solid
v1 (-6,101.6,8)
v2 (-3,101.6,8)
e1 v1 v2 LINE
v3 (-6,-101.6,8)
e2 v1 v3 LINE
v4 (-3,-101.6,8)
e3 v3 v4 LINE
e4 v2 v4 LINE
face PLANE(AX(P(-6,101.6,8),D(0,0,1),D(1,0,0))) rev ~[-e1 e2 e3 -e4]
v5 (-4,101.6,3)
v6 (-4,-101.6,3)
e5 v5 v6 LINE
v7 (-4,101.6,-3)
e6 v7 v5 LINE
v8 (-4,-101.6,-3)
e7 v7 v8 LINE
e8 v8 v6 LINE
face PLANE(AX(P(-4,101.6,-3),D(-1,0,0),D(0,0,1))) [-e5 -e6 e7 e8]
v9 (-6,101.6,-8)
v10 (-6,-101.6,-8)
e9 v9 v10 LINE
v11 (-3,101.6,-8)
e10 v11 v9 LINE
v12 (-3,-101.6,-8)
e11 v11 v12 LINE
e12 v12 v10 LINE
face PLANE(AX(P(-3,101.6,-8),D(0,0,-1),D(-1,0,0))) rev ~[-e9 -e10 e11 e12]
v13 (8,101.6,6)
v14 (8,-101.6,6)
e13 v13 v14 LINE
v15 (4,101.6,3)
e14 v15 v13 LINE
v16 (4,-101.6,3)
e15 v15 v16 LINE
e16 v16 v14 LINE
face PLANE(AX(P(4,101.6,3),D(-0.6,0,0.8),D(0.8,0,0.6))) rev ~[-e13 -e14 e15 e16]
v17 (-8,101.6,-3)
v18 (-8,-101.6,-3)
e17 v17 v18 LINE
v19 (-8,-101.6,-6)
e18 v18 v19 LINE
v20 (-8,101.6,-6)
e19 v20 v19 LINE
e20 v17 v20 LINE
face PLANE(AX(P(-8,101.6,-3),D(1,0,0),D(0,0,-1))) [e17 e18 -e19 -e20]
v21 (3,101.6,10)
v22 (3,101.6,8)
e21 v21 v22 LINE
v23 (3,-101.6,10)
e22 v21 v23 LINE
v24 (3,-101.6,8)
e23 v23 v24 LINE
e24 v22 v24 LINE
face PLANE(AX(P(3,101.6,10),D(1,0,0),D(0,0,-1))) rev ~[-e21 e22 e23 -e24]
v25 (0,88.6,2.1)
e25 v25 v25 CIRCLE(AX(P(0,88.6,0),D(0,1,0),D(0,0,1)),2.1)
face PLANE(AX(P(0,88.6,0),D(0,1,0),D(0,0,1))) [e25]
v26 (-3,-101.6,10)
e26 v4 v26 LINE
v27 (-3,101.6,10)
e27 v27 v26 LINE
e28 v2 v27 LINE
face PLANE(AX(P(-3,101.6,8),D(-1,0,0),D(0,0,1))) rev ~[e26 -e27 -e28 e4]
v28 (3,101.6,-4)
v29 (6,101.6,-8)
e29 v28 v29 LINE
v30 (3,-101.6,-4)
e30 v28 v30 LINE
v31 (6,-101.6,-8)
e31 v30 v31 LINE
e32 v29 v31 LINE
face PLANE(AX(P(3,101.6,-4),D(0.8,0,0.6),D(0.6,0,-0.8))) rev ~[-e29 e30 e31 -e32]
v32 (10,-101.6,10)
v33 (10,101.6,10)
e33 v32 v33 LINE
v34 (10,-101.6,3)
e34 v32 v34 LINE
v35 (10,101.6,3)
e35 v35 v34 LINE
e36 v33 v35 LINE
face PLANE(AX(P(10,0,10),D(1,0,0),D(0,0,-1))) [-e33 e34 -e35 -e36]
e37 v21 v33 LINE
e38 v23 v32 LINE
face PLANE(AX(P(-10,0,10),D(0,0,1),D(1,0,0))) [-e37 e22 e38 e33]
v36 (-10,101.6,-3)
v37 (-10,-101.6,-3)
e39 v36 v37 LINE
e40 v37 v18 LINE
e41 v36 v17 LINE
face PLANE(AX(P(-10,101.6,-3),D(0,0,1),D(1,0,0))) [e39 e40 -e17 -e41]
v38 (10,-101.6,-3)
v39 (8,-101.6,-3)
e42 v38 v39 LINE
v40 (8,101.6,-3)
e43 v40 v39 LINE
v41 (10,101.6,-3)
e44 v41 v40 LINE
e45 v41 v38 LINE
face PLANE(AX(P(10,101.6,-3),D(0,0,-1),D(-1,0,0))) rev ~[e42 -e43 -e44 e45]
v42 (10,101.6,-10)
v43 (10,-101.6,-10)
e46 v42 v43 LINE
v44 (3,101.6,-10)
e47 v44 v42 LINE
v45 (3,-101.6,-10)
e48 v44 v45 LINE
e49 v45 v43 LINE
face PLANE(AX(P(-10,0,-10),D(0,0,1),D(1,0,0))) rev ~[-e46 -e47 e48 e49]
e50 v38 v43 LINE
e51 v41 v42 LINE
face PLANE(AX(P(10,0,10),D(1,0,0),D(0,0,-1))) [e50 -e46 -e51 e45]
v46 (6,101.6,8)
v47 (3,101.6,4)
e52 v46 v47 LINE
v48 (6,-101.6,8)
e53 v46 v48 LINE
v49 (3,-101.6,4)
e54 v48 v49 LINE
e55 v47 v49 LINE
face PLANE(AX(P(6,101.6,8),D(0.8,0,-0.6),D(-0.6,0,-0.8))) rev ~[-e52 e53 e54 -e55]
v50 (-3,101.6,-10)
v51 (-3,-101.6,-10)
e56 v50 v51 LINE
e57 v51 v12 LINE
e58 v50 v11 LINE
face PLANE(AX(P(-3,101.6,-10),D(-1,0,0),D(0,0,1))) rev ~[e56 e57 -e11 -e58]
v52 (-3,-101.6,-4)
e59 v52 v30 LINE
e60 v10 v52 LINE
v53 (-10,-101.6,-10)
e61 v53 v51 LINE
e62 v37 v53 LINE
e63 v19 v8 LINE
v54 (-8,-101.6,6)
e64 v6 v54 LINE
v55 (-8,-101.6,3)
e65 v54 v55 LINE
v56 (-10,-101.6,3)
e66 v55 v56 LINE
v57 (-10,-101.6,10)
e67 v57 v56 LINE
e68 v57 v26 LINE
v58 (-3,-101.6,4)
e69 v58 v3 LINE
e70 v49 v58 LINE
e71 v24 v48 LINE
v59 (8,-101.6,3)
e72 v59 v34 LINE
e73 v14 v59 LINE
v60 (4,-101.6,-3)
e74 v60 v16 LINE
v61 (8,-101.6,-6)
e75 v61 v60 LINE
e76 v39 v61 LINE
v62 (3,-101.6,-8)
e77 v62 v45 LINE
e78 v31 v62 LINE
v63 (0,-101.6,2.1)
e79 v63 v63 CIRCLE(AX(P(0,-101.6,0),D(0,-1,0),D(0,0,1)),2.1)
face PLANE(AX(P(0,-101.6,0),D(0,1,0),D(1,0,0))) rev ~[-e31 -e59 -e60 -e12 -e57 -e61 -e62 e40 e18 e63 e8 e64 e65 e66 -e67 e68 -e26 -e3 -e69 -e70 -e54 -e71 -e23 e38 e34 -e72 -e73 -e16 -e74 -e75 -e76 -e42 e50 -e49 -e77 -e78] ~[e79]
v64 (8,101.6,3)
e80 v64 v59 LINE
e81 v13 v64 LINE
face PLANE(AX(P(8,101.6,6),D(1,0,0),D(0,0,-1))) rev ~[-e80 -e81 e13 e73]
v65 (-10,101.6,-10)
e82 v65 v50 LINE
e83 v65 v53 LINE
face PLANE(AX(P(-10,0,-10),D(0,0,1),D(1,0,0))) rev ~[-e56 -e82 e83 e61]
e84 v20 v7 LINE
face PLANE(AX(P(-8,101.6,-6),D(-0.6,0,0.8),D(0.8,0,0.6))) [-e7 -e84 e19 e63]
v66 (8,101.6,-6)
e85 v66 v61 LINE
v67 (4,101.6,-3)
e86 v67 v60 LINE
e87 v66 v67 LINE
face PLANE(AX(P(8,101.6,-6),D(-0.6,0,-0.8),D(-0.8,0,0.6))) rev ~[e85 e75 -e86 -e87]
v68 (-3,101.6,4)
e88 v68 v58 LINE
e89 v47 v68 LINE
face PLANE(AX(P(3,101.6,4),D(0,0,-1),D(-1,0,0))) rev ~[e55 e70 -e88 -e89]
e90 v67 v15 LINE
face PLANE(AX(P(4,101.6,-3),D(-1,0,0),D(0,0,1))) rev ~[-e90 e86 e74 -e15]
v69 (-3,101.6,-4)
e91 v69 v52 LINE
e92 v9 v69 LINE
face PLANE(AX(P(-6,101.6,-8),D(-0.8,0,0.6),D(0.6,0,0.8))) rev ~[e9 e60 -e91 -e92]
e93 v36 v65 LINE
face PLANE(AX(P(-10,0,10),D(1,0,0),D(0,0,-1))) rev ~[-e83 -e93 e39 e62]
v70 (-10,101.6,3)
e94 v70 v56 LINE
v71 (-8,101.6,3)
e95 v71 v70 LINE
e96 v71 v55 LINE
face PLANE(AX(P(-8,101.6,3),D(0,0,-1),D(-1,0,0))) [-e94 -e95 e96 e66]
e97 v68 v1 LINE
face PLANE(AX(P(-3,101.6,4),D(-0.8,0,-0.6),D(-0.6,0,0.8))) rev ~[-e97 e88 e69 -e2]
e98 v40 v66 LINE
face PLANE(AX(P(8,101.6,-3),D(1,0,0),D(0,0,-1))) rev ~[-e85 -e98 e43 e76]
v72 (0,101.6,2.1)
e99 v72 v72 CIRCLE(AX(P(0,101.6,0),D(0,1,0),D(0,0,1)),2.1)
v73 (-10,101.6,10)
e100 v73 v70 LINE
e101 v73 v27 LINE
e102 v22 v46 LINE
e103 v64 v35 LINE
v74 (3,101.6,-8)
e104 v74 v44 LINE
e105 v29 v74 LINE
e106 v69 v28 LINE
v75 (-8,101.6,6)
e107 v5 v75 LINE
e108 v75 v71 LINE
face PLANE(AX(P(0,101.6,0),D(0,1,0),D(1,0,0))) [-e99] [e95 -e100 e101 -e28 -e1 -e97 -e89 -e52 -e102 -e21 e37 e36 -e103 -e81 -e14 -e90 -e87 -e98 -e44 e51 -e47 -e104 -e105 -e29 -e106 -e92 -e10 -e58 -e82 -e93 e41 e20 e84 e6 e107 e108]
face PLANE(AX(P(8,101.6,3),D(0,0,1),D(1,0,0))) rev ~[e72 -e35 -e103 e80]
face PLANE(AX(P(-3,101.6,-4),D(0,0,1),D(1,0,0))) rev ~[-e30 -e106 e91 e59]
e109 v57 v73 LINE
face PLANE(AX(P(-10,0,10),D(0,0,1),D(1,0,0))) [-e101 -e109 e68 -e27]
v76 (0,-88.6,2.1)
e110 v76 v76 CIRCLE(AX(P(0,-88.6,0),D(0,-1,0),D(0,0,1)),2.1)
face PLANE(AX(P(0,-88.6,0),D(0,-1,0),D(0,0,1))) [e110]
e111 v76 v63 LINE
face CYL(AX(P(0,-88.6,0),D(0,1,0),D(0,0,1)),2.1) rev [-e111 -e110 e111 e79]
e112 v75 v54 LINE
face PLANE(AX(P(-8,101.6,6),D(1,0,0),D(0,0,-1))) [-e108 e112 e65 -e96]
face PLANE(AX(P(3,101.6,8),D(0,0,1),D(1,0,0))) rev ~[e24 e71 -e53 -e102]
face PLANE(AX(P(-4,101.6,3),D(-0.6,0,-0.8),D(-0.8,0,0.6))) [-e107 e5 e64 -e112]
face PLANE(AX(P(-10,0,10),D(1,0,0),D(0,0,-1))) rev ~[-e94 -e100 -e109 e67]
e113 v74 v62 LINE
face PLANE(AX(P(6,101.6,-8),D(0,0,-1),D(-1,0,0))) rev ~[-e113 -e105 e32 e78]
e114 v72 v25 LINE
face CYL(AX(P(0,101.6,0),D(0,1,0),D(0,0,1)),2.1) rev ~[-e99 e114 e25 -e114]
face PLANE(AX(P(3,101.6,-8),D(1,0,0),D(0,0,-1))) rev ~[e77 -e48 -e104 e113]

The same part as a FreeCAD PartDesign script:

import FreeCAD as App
import Part
import Sketcher
from FreeCAD import Vector


def add_polygon(sketch, points):
    """Adds a closed chain of lines whose ends are joined by coincident constraints."""
    first, n = sketch.GeometryCount, len(points)
    for a, b in zip(points, points[1:] + points[:1]):
        sketch.addGeometry(Part.LineSegment(App.Vector(*a, 0), App.Vector(*b, 0)), False)
    for i in range(n):
        sketch.addConstraint(Sketcher.Constraint("Coincident", first + i, 2, first + (i + 1) % n, 1))

doc = App.newDocument("Part")
body = doc.addObject("PartDesign::Body", "Body")

# Sketch on XZ plane
sketch1 = body.newObject("Sketcher::SketchObject", "Sketch")
sketch1.AttachmentSupport = (doc.getObject("XZ_Plane"), [""])
sketch1.MapMode = "FlatFace"
add_polygon(sketch1, [(-10, -10), (-10, 10), (10, 10), (10, -10)])  # lines 0-3
sketch1.addConstraint([
    Sketcher.Constraint("Vertical", 0),
    Sketcher.Constraint("Horizontal", 1),
    Sketcher.Constraint("Vertical", 2),
    Sketcher.Constraint("Horizontal", 3),
    Sketcher.Constraint("Symmetric", 0, 2, 2, 2, -1, 1),
    Sketcher.Constraint("Equal", 3, 0),
    Sketcher.Constraint("DistanceX", 1, 1, 1, 2, 20.0),
])
pad1 = body.newObject("PartDesign::Pad", "Pad")
pad1.Profile = sketch1
pad1.Length = 203.2
pad1.Midplane = True

# Sketch on XZ plane
sketch2 = body.newObject("Sketcher::SketchObject", "Sketch001")
sketch2.AttachmentSupport = (doc.getObject("XZ_Plane"), [""])
sketch2.MapMode = "FlatFace"
sketch2.AttachmentOffset = App.Placement(Vector(0, 0, -101.6), App.Rotation())
add_polygon(sketch2, [(-10, -3), (-10, 3), (-8, 3), (-8, 6), (-4, 3), (-4, -3), (-8, -6), (-8, -3)])  # lines 0-7
add_polygon(sketch2, [(3, -4), (6, -8), (3, -8), (3, -10), (-3, -10), (-3, -8), (-6, -8), (-3, -4)])  # lines 8-15
add_polygon(sketch2, [(4, 3), (8, 6), (8, 3), (10, 3), (10, -3), (8, -3), (8, -6), (4, -3)])  # lines 16-23
add_polygon(sketch2, [(-3, 4), (-6, 8), (-3, 8), (-3, 10), (3, 10), (3, 8), (6, 8), (3, 4)])  # lines 24-31
sketch2.addConstraint([
    Sketcher.Constraint("Vertical", 0),
    Sketcher.Constraint("Horizontal", 1),
    Sketcher.Constraint("Vertical", 2),
    Sketcher.Constraint("Vertical", 4),
    Sketcher.Constraint("Vertical", 6),
    Sketcher.Constraint("Horizontal", 7),
    Sketcher.Constraint("Horizontal", 9),
    Sketcher.Constraint("Vertical", 10),
    Sketcher.Constraint("Horizontal", 11),
    Sketcher.Constraint("Vertical", 12),
    Sketcher.Constraint("Horizontal", 13),
    Sketcher.Constraint("Horizontal", 15),
    Sketcher.Constraint("Vertical", 17),
    Sketcher.Constraint("Horizontal", 18),
    Sketcher.Constraint("Vertical", 19),
    Sketcher.Constraint("Horizontal", 20),
    Sketcher.Constraint("Vertical", 21),
    Sketcher.Constraint("Vertical", 23),
    Sketcher.Constraint("Horizontal", 25),
    Sketcher.Constraint("Vertical", 26),
    Sketcher.Constraint("Horizontal", 27),
    Sketcher.Constraint("Vertical", 28),
    Sketcher.Constraint("Horizontal", 29),
    Sketcher.Constraint("Horizontal", 31),
    Sketcher.Constraint("Symmetric", 5, 2, 16, 2, -1, 1),
    Sketcher.Constraint("Symmetric", 7, 2, 18, 2, -1, 1),
    Sketcher.Constraint("Symmetric", 1, 2, 20, 2, -1, 1),
    Sketcher.Constraint("Symmetric", 3, 2, 22, 2, -1, 1),
    Sketcher.Constraint("Symmetric", 8, 2, 24, 2, -1, 1),
    Sketcher.Constraint("Symmetric", 10, 2, 26, 2, -1, 1),
    Sketcher.Constraint("Symmetric", 12, 2, 28, 2, -1, 1),
    Sketcher.Constraint("Symmetric", 14, 2, 30, 2, -1, 1),
    Sketcher.Constraint("Symmetric", 9, 2, 12, 2, -2),
    Sketcher.Constraint("Symmetric", 2, 2, 16, 2, -2),
    Sketcher.Constraint("Perpendicular", 5, 8),
    Sketcher.Constraint("Perpendicular", 3, 14),
    Sketcher.Constraint("Perpendicular", 8, 16),
    Sketcher.Constraint("Perpendicular", 14, 22),
    Sketcher.Constraint("Perpendicular", 16, 24),
    Sketcher.Constraint("Perpendicular", 22, 30),
    Sketcher.Constraint("Horizontal", 1, 2, 3, 2),
    Sketcher.Constraint("Horizontal", 4, 2, 6, 2),
    Sketcher.Constraint("Horizontal", 3, 2, 17, 2),
    Sketcher.Constraint("Vertical", 12, 2, 14, 2),
    Sketcher.Constraint("Vertical", 10, 2, 15, 2),
    Sketcher.Constraint("Equal", 31, 0),
    Sketcher.Constraint("Equal", 29, 2),
    Sketcher.Constraint("Equal", 20, 10),
    Sketcher.Constraint("DistanceX", 1, 1, 1, 2, 2.0),
    Sketcher.Constraint("DistanceX", 9, 2, 9, 1, 3.0),
    Sketcher.Constraint("DistanceX", 11, 2, 11, 1, 6.0),
    Sketcher.Constraint("Distance", 3, 5.0),
    Sketcher.Constraint("DistanceX", 0, 2, -1, 1, 10.0),
    Sketcher.Constraint("DistanceY", 8, 2, -1, 1, 8.0),
])
pocket1 = body.newObject("PartDesign::Pocket", "Pocket")
pocket1.Profile = sketch2
pocket1.Length = 203.2
pocket1.Reversed = True

# Sketch on XZ plane
sketch3 = body.newObject("Sketcher::SketchObject", "Sketch002")
sketch3.AttachmentSupport = (doc.getObject("XZ_Plane"), [""])
sketch3.MapMode = "FlatFace"
sketch3.AttachmentOffset = App.Placement(Vector(0, 0, -101.6), App.Rotation())
sketch3.addGeometry(Part.Circle(Vector(0, 0, 0), Vector(0, 0, 1), 2.1), False)
sketch3.addConstraint([
    Sketcher.Constraint("Coincident", 0, 3, -1, 1),
    Sketcher.Constraint("Diameter", 0, 4.2),
])
pocket2 = body.newObject("PartDesign::Pocket", "Pocket001")
pocket2.Profile = sketch3
pocket2.Length = 13
pocket2.Reversed = True

# Sketch on XZ plane
sketch4 = body.newObject("Sketcher::SketchObject", "Sketch003")
sketch4.AttachmentSupport = (doc.getObject("XZ_Plane"), [""])
sketch4.MapMode = "FlatFace"
sketch4.AttachmentOffset = App.Placement(Vector(0, 0, 88.6), App.Rotation())
sketch4.addGeometry(Part.Circle(Vector(0, 0, 0), Vector(0, 0, 1), 2.1), False)
sketch4.addConstraint([
    Sketcher.Constraint("Coincident", 0, 3, -1, 1),
    Sketcher.Constraint("Diameter", 0, 4.2),
])
pocket3 = body.newObject("PartDesign::Pocket", "Pocket002")
pocket3.Profile = sketch4
pocket3.Length = 13
pocket3.Reversed = True

doc.recompute()
